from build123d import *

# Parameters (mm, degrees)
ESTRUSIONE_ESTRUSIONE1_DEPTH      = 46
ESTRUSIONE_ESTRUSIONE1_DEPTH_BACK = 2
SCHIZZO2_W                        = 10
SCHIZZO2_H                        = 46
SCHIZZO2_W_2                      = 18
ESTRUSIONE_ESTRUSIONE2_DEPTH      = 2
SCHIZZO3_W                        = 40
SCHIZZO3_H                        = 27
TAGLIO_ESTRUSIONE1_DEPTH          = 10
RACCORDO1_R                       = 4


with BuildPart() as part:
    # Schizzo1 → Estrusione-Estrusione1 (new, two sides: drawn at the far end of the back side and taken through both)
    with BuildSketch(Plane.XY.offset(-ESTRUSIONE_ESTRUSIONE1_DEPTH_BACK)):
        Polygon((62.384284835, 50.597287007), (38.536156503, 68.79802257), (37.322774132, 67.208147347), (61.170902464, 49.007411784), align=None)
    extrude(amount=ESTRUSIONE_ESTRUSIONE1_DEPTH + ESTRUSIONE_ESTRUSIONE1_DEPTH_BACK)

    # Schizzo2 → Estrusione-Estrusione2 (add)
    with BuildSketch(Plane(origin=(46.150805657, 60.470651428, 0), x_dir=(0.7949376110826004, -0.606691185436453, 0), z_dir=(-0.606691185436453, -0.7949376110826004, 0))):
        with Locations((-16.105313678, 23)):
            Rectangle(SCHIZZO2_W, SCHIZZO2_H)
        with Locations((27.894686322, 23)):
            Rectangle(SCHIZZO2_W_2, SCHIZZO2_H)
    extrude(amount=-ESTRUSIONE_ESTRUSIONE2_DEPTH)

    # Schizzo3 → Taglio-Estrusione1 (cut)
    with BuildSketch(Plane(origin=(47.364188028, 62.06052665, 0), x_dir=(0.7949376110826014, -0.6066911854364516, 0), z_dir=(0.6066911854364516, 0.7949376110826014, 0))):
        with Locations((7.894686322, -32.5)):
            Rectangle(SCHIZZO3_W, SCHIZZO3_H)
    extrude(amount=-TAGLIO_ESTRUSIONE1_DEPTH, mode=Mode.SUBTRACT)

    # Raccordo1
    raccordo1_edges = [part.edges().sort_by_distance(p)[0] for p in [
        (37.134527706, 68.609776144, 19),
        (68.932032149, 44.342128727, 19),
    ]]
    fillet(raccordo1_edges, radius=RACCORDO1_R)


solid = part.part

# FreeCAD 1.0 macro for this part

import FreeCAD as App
import Part
import Sketcher


def edges_at(feature, points):
    """Names of the edges that pass closest to the given points."""
    edges = feature.Shape.Edges
    near = lambda p: min(range(len(edges)), key=lambda i: edges[i].distToShape(Part.Vertex(*p))[0])
    return sorted({f"Edge{near(p) + 1}" for p in points})

doc = App.newDocument("Part")
body = doc.addObject("PartDesign::Body", "Body")

# Sketch on XY plane
sketch1 = doc.addObject("Sketcher::SketchObject", "Sketch")
body.addObject(sketch1)
sketch1.AttachmentSupport = (doc.XY_Plane, [""])
sketch1.MapMode = "FlatFace"
sketch1.addGeometry([
    Part.LineSegment(App.Vector(62.4, 50.6, 0), App.Vector(38.5, 68.8, 0)),
    Part.LineSegment(App.Vector(38.5, 68.8, 0), App.Vector(37.3, 67.2, 0)),
    Part.LineSegment(App.Vector(37.3, 67.2, 0), App.Vector(61.2, 49, 0)),
    Part.LineSegment(App.Vector(61.2, 49, 0), App.Vector(62.4, 50.6, 0)),
], False)
sketch1.addConstraint([
    Sketcher.Constraint("Coincident", 0, 2, 1, 1),
    Sketcher.Constraint("Coincident", 1, 2, 2, 1),
    Sketcher.Constraint("Coincident", 2, 2, 3, 1),
    Sketcher.Constraint("Coincident", 3, 2, 0, 1),
    Sketcher.Constraint("Perpendicular", 0, 1),
    Sketcher.Constraint("Perpendicular", 1, 2),
    Sketcher.Constraint("Perpendicular", 2, 3),
    Sketcher.Constraint("Distance", 0, 30.0),
    Sketcher.Constraint("Distance", 1, 2.0),
    Sketcher.Constraint("DistanceY", -1, 1, 2, 2, 49.007412),
    Sketcher.Constraint("DistanceX", 1, 2, 2, 2, 23.848128),
    Sketcher.Constraint("DistanceX", -1, 1, 0, 2, 38.536157),
])
pad1 = doc.addObject("PartDesign::Pad", "Pad")
body.addObject(pad1)
pad1.Profile = sketch1
pad1.Type = "TwoLengths"
pad1.Length = 46
pad1.Length2 = 2

# Sketch on an angled plane
sketch2 = doc.addObject("Sketcher::SketchObject", "Sketch001")
body.addObject(sketch2)
sketch2.Placement = App.Placement(App.Vector(46.150806, 60.470651, 0), App.Rotation(App.Vector(0.794937611, -0.606691185, 0), App.Vector(0, 0, 0.999999999), App.Vector(-0.606691185, -0.794937611, 0), "ZXY"))
sketch2.addGeometry([
    Part.LineSegment(App.Vector(-21, 46, 0), App.Vector(-21, 0, 0)),  # 0
    Part.LineSegment(App.Vector(-21, 0, 0), App.Vector(-11, 0, 0)),  # 1
    Part.LineSegment(App.Vector(-11, 0, 0), App.Vector(-11, 46, 0)),  # 2
    Part.LineSegment(App.Vector(-11, 46, 0), App.Vector(-21, 46, 0)),  # 3
    Part.LineSegment(App.Vector(19, 46, 0), App.Vector(19, 0, 0)),  # 4
    Part.LineSegment(App.Vector(19, 0, 0), App.Vector(37, 0, 0)),  # 5
    Part.LineSegment(App.Vector(37, 0, 0), App.Vector(37, 46, 0)),  # 6
    Part.LineSegment(App.Vector(37, 46, 0), App.Vector(19, 46, 0)),  # 7
], False)
sketch2.addConstraint([
    Sketcher.Constraint("Coincident", 0, 2, 1, 1),
    Sketcher.Constraint("Coincident", 1, 2, 2, 1),
    Sketcher.Constraint("Coincident", 2, 2, 3, 1),
    Sketcher.Constraint("Coincident", 3, 2, 0, 1),
    Sketcher.Constraint("Coincident", 4, 2, 5, 1),
    Sketcher.Constraint("Coincident", 5, 2, 6, 1),
    Sketcher.Constraint("Coincident", 6, 2, 7, 1),
    Sketcher.Constraint("Coincident", 7, 2, 4, 1),
    Sketcher.Constraint("Vertical", 0),
    Sketcher.Constraint("Horizontal", 1),
    Sketcher.Constraint("Vertical", 2),
    Sketcher.Constraint("Horizontal", 3),
    Sketcher.Constraint("Vertical", 4),
    Sketcher.Constraint("Horizontal", 5),
    Sketcher.Constraint("Vertical", 6),
    Sketcher.Constraint("Horizontal", 7),
    Sketcher.Constraint("PointOnObject", 0, 2, -1),
    Sketcher.Constraint("PointOnObject", 4, 2, -1),
    Sketcher.Constraint("Horizontal", 3, 2, 6, 2),
    Sketcher.Constraint("DistanceX", 1, 1, 1, 2, 10.0),
    Sketcher.Constraint("DistanceX", 5, 1, 5, 2, 18.0),
    Sketcher.Constraint("DistanceY", 0, 2, 0, 1, 46.0),
    Sketcher.Constraint("DistanceX", 1, 2, 4, 2, 30.0),
    Sketcher.Constraint("DistanceX", 0, 2, -1, 1, 21.105314),
])
pad2 = doc.addObject("PartDesign::Pad", "Pad001")
body.addObject(pad2)
pad2.Profile = sketch2
pad2.Length = 2
pad2.Reversed = True

# Sketch on an angled plane
sketch3 = doc.addObject("Sketcher::SketchObject", "Sketch002")
body.addObject(sketch3)
sketch3.Placement = App.Placement(App.Vector(47.364188, 62.060527, 0), App.Rotation(App.Vector(0.794937611, -0.606691185, 0), App.Vector(0, 0, -0.999999999), App.Vector(0.606691185, 0.794937611, 0), "ZXY"))
sketch3.addGeometry([
    Part.LineSegment(App.Vector(-12, -19, 0), App.Vector(-12, -46, 0)),
    Part.LineSegment(App.Vector(-12, -46, 0), App.Vector(28, -46, 0)),
    Part.LineSegment(App.Vector(28, -46, 0), App.Vector(28, -19, 0)),
    Part.LineSegment(App.Vector(28, -19, 0), App.Vector(-12, -19, 0)),
], False)
sketch3.addConstraint([
    Sketcher.Constraint("Coincident", 0, 2, 1, 1),
    Sketcher.Constraint("Coincident", 1, 2, 2, 1),
    Sketcher.Constraint("Coincident", 2, 2, 3, 1),
    Sketcher.Constraint("Coincident", 3, 2, 0, 1),
    Sketcher.Constraint("Vertical", 0),
    Sketcher.Constraint("Horizontal", 1),
    Sketcher.Constraint("Vertical", 2),
    Sketcher.Constraint("Horizontal", 3),
    Sketcher.Constraint("DistanceX", 1, 1, 1, 2, 40.0),
    Sketcher.Constraint("DistanceY", 0, 2, 0, 1, 27.0),
    Sketcher.Constraint("DistanceY", 0, 2, -1, 1, 46.0),
    Sketcher.Constraint("DistanceX", 0, 2, -1, 1, 12.105314),
])
pocket1 = doc.addObject("PartDesign::Pocket", "Pocket")
body.addObject(pocket1)
pocket1.Profile = sketch3
pocket1.Length = 10
doc.recompute()

fillet = doc.addObject("PartDesign::Fillet", "Fillet")
body.addObject(fillet)
fillet.Base = (pocket1, edges_at(pocket1, [(37.135, 68.61, 19), (68.932, 44.342, 19)]))
fillet.Radius = 4

doc.recompute()
